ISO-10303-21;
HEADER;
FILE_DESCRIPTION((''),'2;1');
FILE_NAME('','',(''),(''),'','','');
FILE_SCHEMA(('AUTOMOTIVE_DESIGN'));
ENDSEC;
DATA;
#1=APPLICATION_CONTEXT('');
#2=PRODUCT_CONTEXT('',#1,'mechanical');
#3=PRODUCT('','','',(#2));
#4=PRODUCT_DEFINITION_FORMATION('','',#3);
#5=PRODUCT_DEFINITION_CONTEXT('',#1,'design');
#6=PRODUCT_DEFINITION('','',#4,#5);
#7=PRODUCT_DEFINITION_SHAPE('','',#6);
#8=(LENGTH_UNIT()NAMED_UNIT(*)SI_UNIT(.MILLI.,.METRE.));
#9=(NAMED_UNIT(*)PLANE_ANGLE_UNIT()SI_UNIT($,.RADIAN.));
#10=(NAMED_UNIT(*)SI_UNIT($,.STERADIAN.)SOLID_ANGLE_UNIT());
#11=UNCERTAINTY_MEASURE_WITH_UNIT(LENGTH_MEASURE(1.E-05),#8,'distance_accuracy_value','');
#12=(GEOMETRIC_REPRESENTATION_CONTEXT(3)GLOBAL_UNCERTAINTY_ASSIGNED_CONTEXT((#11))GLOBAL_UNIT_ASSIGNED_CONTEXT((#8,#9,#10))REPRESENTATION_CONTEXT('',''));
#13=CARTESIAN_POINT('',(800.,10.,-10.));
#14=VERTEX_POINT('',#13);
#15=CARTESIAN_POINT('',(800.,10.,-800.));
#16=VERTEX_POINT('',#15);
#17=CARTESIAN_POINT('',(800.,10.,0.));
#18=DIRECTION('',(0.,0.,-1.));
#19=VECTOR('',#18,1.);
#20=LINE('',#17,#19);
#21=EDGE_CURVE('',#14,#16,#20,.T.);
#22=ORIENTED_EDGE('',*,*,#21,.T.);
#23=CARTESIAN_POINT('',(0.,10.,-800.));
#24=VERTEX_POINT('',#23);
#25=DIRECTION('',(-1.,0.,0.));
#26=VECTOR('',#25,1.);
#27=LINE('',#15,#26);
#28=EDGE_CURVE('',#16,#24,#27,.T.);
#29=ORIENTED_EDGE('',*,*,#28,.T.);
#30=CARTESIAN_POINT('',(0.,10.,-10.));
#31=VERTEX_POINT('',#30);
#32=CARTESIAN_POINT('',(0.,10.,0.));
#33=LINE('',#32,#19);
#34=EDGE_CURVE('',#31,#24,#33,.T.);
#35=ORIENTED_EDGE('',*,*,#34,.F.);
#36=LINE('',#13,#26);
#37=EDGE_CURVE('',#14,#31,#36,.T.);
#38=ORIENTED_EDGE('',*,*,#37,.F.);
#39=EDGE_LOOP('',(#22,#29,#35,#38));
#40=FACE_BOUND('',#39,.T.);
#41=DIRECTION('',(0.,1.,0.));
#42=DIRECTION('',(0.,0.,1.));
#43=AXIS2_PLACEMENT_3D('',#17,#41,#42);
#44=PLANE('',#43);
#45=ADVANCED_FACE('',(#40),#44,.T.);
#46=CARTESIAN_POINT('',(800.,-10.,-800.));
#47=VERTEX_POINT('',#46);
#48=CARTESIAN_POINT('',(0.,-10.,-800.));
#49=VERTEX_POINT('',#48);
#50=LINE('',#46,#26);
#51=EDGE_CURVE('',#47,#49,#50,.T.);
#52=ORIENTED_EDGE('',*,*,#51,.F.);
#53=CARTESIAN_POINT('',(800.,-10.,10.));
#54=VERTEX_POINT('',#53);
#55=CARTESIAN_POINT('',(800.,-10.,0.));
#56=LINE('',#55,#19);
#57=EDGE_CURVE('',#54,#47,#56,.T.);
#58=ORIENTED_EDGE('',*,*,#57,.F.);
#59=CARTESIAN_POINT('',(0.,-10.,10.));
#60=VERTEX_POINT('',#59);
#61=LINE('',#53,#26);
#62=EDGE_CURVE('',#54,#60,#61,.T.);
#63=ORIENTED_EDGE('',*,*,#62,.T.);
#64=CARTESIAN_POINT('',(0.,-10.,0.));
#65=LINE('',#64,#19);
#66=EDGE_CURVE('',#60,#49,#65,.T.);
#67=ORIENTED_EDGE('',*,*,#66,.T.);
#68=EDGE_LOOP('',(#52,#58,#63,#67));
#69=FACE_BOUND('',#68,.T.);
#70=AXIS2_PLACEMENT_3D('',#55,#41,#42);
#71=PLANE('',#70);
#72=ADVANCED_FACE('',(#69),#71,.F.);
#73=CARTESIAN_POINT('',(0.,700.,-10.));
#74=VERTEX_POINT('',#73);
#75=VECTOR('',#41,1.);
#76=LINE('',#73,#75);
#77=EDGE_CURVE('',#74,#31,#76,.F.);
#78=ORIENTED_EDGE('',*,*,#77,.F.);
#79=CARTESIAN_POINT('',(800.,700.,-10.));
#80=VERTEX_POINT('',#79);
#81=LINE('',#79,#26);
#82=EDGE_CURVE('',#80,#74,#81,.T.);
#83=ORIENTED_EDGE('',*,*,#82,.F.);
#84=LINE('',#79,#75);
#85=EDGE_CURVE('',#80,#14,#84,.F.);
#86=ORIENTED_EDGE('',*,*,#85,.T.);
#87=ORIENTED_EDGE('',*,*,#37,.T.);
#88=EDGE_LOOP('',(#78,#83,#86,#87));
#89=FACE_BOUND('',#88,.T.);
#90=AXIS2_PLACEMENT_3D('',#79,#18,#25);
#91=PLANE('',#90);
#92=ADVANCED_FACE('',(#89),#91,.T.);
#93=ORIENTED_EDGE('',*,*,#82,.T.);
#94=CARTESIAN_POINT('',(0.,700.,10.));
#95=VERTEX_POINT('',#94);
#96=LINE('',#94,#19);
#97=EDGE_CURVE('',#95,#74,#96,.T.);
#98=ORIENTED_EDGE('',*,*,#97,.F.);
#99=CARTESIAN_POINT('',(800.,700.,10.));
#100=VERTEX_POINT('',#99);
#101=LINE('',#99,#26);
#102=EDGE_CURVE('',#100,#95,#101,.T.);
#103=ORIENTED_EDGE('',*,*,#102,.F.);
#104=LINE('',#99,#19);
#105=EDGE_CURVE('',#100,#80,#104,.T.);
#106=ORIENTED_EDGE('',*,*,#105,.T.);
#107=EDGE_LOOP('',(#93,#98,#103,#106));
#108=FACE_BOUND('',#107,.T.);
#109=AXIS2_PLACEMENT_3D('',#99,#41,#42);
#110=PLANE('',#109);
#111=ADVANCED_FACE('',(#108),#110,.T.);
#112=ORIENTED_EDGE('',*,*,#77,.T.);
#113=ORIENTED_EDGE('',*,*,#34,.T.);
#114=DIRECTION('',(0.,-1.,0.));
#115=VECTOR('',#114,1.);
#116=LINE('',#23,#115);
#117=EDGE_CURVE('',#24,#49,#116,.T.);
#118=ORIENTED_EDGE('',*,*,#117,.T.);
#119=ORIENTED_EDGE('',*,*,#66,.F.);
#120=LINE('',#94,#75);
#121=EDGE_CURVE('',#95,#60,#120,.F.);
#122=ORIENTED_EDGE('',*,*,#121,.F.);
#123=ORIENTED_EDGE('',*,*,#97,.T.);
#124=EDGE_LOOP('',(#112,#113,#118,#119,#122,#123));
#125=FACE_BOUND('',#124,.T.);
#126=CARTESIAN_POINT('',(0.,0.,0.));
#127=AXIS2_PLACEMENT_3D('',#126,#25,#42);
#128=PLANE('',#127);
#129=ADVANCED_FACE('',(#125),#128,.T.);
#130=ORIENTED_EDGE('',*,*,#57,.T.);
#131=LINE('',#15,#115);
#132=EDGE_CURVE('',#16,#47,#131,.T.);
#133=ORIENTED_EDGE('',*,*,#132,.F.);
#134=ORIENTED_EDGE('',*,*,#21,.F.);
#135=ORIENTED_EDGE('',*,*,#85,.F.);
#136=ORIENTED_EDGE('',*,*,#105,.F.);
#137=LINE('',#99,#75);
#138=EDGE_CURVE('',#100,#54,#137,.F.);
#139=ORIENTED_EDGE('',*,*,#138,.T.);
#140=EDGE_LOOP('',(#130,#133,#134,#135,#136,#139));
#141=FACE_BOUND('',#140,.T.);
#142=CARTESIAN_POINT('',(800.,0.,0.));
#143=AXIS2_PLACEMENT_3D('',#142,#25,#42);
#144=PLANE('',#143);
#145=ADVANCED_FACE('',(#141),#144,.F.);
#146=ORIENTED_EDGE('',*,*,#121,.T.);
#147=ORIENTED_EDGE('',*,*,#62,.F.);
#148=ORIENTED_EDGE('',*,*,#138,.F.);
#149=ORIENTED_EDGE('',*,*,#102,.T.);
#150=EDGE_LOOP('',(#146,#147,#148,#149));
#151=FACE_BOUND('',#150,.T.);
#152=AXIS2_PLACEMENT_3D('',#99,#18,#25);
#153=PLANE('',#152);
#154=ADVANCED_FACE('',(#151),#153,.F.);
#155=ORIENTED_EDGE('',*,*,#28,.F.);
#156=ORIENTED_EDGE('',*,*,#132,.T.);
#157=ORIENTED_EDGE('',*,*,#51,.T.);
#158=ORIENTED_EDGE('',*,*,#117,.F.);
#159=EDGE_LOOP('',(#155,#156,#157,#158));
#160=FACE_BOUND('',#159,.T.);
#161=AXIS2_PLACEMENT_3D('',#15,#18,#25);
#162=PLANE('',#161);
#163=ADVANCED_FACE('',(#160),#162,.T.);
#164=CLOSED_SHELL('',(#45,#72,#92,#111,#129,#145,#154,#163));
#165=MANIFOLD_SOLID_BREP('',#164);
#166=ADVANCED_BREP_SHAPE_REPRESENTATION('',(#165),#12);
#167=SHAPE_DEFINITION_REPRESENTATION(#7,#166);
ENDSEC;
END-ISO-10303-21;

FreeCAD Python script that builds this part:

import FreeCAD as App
import Part
import Sketcher


def add_polygon(sketch, points):
    """Adds a closed chain of lines whose ends are joined by coincident constraints."""
    first, n = sketch.GeometryCount, len(points)
    for a, b in zip(points, points[1:] + points[:1]):
        sketch.addGeometry(Part.LineSegment(App.Vector(*a, 0), App.Vector(*b, 0)), False)
    for i in range(n):
        sketch.addConstraint(Sketcher.Constraint("Coincident", first + i, 2, first + (i + 1) % n, 1))

doc = App.newDocument("Part")
body = doc.addObject("PartDesign::Body", "Body")

# Sketch on YZ plane
sketch1 = doc.addObject("Sketcher::SketchObject", "Sketch")
body.addObject(sketch1)
sketch1.AttachmentSupport = (doc.YZ_Plane, [""])
sketch1.MapMode = "FlatFace"
add_polygon(sketch1, [(700, 10), (-10, 10), (-10, -800), (10, -800), (10, -10), (700, -10)])  # lines 0-5
sketch1.addConstraint([
    Sketcher.Constraint("Horizontal", 0),
    Sketcher.Constraint("Vertical", 1),
    Sketcher.Constraint("Horizontal", 2),
    Sketcher.Constraint("Vertical", 3),
    Sketcher.Constraint("Horizontal", 4),
    Sketcher.Constraint("Vertical", 5),
    Sketcher.Constraint("Symmetric", 0, 2, 3, 2, -1, 1),
    Sketcher.Constraint("Equal", 2, 5),
    Sketcher.Constraint("DistanceX", 0, 2, 0, 1, 710.0),
    Sketcher.Constraint("DistanceX", 2, 1, 2, 2, 20.0),
    Sketcher.Constraint("DistanceY", 1, 2, 1, 1, 810.0),
])
pad1 = doc.addObject("PartDesign::Pad", "Pad")
body.addObject(pad1)
pad1.Profile = sketch1
pad1.Length = 800

doc.recompute()
